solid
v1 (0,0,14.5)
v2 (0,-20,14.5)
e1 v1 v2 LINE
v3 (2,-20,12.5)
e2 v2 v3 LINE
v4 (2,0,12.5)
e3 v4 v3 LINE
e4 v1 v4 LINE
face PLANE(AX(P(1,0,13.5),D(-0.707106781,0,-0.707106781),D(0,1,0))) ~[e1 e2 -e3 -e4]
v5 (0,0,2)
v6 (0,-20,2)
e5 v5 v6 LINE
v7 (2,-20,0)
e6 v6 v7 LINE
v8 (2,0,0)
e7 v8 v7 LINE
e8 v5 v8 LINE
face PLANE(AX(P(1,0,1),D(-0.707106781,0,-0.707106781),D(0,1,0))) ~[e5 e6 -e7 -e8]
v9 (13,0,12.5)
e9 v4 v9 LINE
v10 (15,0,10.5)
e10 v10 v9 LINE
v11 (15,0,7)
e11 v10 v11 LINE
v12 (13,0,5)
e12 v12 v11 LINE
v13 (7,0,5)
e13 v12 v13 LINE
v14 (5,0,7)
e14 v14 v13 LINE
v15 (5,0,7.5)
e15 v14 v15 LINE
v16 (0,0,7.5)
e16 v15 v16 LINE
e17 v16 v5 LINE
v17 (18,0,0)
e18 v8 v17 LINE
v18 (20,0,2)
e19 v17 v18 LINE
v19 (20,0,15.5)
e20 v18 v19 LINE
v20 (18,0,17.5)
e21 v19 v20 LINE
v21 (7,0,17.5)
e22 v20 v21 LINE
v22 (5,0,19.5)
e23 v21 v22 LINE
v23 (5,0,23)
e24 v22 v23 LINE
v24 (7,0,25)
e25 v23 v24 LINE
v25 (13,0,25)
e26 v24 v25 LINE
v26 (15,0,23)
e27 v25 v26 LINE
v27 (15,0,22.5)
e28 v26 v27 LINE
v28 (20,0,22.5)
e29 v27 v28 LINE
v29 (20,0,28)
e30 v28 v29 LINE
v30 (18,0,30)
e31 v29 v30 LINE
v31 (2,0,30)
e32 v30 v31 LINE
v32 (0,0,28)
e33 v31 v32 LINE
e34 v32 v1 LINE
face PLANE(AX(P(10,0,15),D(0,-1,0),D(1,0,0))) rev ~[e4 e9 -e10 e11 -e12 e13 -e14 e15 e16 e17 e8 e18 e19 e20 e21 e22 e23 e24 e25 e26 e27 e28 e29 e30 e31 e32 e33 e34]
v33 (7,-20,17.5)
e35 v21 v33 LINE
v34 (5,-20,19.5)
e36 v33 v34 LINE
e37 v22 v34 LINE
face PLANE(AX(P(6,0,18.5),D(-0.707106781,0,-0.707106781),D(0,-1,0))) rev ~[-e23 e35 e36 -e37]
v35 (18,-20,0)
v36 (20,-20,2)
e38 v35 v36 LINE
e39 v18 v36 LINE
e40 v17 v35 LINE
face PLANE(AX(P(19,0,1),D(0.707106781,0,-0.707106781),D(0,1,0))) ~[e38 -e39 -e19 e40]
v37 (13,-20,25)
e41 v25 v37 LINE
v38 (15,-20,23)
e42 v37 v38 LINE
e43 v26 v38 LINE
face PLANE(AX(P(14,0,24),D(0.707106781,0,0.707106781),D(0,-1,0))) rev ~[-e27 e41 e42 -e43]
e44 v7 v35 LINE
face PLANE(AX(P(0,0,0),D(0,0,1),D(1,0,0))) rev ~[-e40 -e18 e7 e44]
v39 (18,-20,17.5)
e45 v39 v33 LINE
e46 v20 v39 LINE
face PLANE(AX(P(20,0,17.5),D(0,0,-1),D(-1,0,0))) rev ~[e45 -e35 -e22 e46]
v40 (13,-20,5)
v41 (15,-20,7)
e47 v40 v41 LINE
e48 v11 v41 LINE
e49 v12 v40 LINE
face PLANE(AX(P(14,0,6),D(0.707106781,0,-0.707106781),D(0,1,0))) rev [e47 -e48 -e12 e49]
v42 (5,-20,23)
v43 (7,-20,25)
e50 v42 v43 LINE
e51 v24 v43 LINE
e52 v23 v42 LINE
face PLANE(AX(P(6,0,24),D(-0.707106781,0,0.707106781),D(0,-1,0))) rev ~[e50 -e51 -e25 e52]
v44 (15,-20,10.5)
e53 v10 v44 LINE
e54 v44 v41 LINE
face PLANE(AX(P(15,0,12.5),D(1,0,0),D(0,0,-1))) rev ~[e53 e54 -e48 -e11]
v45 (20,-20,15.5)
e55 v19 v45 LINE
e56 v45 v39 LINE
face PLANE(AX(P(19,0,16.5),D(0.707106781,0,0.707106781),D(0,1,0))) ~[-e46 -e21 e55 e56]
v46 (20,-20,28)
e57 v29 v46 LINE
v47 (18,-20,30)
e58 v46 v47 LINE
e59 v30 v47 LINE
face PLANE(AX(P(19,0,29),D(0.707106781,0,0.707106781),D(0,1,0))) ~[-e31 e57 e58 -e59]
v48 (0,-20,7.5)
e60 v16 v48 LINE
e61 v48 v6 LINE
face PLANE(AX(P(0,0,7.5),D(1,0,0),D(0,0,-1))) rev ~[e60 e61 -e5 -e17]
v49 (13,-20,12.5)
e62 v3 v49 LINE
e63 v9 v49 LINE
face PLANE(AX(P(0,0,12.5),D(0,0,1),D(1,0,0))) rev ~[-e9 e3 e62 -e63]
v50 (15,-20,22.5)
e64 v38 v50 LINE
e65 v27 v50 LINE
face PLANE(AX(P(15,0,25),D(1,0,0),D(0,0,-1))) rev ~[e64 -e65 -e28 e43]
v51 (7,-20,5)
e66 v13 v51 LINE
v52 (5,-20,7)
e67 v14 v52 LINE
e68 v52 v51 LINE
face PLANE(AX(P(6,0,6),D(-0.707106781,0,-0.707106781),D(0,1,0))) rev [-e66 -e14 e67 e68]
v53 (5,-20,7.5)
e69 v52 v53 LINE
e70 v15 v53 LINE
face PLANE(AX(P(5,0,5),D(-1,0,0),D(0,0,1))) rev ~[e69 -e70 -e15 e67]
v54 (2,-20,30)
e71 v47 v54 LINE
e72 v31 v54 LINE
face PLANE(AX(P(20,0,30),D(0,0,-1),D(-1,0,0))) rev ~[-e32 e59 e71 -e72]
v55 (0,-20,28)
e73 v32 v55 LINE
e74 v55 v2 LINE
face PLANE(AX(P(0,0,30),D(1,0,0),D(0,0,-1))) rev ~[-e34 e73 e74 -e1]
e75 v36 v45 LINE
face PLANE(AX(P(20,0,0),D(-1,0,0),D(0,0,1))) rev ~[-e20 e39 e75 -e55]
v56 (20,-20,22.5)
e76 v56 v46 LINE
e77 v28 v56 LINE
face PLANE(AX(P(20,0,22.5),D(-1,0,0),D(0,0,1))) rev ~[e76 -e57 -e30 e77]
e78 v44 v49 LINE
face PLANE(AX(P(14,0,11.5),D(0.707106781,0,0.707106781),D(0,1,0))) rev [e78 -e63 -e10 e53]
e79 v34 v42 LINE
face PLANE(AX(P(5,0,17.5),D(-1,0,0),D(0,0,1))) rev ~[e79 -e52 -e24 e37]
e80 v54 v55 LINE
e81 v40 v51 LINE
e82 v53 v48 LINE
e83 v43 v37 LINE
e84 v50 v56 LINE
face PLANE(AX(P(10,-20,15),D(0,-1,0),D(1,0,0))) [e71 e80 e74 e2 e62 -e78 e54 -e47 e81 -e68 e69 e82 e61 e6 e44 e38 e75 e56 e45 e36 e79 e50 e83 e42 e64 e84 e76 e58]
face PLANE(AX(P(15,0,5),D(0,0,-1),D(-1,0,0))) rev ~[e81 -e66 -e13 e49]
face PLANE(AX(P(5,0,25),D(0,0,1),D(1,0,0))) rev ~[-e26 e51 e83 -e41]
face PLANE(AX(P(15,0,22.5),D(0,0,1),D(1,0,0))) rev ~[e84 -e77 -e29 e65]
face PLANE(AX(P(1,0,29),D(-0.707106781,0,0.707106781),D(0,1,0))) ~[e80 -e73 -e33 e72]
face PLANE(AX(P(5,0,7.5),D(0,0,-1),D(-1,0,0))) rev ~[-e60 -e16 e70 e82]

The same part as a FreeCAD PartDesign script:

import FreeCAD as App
import Part
import Sketcher

V = App.Vector
Q = App.Units.Quantity


def edges_at(feature, points):
    """Names of the edges that pass closest to the given points."""
    edges = feature.Shape.Edges
    near = lambda p: min(range(len(edges)), key=lambda i: edges[i].distToShape(Part.Vertex(*p))[0])
    return sorted({f"Edge{near(p) + 1}" for p in points})


def add_polygon(sketch, points):
    """Adds a closed chain of lines whose ends are joined by coincident constraints."""
    first, n = sketch.GeometryCount, len(points)
    for a, b in zip(points, points[1:] + points[:1]):
        sketch.addGeometry(Part.LineSegment(App.Vector(*a, 0), App.Vector(*b, 0)), False)
    for i in range(n):
        sketch.addConstraint(Sketcher.Constraint("Coincident", first + i, 2, first + (i + 1) % n, 1))

doc = App.newDocument("Part")
body = doc.addObject("PartDesign::Body", "Body")

sketch1 = body.newObject("Sketcher::SketchObject", "Sketch")
sketch1.AttachmentSupport = (doc.getObject("XZ_Plane"), [""])
sketch1.MapMode = "FlatFace"
add_polygon(sketch1, [(0, 7.5), (0, 0), (20, 0), (20, 17.5), (5, 17.5), (5, 25), (15, 25), (15, 22.5), (20, 22.5), (20, 30), (0, 30), (0, 12.5), (15, 12.5), (15, 5), (5, 5), (5, 7.5)])
sketch1.addConstraint([
    Sketcher.Constraint("Vertical", 0),
    Sketcher.Constraint("Horizontal", 1),
    Sketcher.Constraint("Vertical", 2),
    Sketcher.Constraint("Horizontal", 3),
    Sketcher.Constraint("Vertical", 4),
    Sketcher.Constraint("Horizontal", 5),
    Sketcher.Constraint("Vertical", 6),
    Sketcher.Constraint("Horizontal", 7),
    Sketcher.Constraint("Vertical", 8),
    Sketcher.Constraint("Horizontal", 9),
    Sketcher.Constraint("Vertical", 10),
    Sketcher.Constraint("Horizontal", 11),
    Sketcher.Constraint("Vertical", 12),
    Sketcher.Constraint("Horizontal", 13),
    Sketcher.Constraint("Vertical", 14),
    Sketcher.Constraint("Horizontal", 15),
    Sketcher.Constraint("Coincident", 0, 2, -1, 1),
    Sketcher.Constraint("PointOnObject", 9, 2, -2),
    Sketcher.Constraint("Vertical", 2, 2, 7, 2),
    Sketcher.Constraint("Vertical", 6, 2, 11, 2),
    Sketcher.Constraint("Vertical", 4, 2, 13, 2),
    Sketcher.Constraint("Equal", 3, 11),
    Sketcher.Constraint("Equal", 0, 4),
    Sketcher.Constraint("Equal", 4, 8),
    Sketcher.Constraint("Equal", 2, 10),
    Sketcher.Constraint("Equal", 8, 12),
    Sketcher.Constraint("DistanceX", 1, 1, 1, 2, Q("20 mm")),
    Sketcher.Constraint("DistanceX", 3, 2, 3, 1, Q("15 mm")),
    Sketcher.Constraint("DistanceY", 0, 2, 0, 1, Q("7.5 mm")),
    Sketcher.Constraint("DistanceY", 2, 1, 2, 2, Q("17.5 mm")),
    Sketcher.Constraint("DistanceY", 6, 2, 6, 1, Q("2.5 mm")),
])
pad1 = body.newObject("PartDesign::Pad", "Pad")
pad1.Profile = sketch1
pad1.Length = 20
doc.recompute()

chamfer = body.newObject("PartDesign::Chamfer", "Chamfer")
chamfer.Base = (pad1, edges_at(pad1, [
    (20, -10, 30),
    (0, -10, 30),
    (0, -10, 12.5),
    (20, -10, 17.5),
    (0, -10, 0),
    (20, -10, 0),
]))
chamfer.Size = 2
doc.recompute()

chamfer2 = body.newObject("PartDesign::Chamfer", "Chamfer001")
chamfer2.Base = (chamfer, edges_at(chamfer, [
    (5, -10, 17.5),
    (5, -10, 5),
    (5, -10, 25),
    (15, -10, 12.5),
    (15, -10, 25),
    (15, -10, 5),
]))
chamfer2.Size = 2

doc.recompute()
